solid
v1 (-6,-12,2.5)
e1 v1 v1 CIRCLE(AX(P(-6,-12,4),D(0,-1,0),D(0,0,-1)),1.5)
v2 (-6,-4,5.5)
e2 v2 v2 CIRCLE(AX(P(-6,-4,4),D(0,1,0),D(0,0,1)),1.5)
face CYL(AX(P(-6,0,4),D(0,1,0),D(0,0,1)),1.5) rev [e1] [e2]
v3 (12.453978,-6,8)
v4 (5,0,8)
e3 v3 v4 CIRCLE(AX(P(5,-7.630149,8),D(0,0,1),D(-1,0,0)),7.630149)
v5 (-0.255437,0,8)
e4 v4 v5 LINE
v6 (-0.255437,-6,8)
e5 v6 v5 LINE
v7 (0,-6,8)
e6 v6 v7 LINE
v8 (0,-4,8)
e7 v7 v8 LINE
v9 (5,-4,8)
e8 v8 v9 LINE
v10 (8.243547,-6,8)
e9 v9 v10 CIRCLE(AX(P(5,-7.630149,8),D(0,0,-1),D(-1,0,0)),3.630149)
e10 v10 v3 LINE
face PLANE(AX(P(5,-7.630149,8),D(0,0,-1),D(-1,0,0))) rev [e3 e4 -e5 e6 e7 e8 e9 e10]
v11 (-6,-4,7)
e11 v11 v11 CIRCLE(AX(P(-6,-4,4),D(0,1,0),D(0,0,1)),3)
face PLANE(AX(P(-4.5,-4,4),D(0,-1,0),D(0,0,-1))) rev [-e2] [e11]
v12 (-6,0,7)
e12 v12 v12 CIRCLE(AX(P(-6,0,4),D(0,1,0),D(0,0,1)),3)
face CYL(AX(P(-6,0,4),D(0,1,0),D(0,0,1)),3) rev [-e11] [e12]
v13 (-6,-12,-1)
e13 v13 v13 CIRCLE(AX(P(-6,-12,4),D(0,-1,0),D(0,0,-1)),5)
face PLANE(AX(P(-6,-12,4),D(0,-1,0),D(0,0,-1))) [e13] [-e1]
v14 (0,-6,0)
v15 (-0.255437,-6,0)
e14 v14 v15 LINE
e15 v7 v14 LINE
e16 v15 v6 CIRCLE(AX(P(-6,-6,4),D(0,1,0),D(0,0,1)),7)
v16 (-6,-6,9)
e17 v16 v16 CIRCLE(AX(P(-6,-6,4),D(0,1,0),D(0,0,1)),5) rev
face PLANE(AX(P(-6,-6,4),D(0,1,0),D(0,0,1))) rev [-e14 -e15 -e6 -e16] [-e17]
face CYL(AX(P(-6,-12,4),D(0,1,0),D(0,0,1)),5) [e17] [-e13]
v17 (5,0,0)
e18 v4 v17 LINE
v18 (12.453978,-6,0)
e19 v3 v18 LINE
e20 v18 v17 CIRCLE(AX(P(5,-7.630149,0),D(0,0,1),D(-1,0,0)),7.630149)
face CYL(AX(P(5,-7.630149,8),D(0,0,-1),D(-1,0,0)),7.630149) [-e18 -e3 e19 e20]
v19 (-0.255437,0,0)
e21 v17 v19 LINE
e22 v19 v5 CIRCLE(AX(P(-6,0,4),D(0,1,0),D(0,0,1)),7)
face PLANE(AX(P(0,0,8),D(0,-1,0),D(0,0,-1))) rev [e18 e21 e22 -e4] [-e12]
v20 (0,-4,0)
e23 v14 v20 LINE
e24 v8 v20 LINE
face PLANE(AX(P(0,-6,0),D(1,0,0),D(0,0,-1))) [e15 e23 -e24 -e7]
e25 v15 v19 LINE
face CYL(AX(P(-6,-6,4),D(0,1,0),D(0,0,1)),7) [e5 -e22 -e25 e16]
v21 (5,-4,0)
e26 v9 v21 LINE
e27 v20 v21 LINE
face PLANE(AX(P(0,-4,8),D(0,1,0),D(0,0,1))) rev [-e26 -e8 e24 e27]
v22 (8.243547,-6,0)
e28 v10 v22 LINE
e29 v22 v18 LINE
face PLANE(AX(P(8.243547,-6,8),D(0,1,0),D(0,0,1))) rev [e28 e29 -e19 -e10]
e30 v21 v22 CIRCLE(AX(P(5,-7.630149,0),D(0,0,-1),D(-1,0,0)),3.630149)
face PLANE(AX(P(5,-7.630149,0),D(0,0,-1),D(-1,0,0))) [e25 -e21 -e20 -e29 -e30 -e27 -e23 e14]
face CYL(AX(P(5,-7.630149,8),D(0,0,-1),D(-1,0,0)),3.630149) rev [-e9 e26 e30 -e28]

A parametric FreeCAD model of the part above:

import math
import FreeCAD as App
import Part
import Sketcher

V = App.Vector
Q = App.Units.Quantity

doc = App.newDocument("Part")
body = doc.addObject("PartDesign::Body", "Body")

# Sketch on XY plane
sketch1 = body.newObject("Sketcher::SketchObject", "Sketch")
sketch1.AttachmentSupport = (doc.getObject("XY_Plane"), [""])
sketch1.MapMode = "FlatFace"
sketch1.addGeometry(Part.LineSegment(V(5, 0, 0), V(0, 0, 0)), False)
sketch1.addGeometry(Part.LineSegment(V(0, 0, 0), V(0, -4, 0)), False)
sketch1.addGeometry(Part.LineSegment(V(0, -4, 0), V(5, -4, 0)), False)
sketch1.addGeometry(Part.ArcOfCircle(Part.Circle(V(5, -7.6, 0), V(0, 0, 1), 3.6), math.radians(27), math.radians(90)), False)
sketch1.addGeometry(Part.LineSegment(V(8.2, -6, 0), V(12.5, -6, 0)), False)
sketch1.addGeometry(Part.ArcOfCircle(Part.Circle(V(5, -7.6, 0), V(0, 0, 1), 7.6), math.radians(12), math.radians(90)), False)
sketch1.addConstraint(Sketcher.Constraint("Coincident", 0, 2, 1, 1))
sketch1.addConstraint(Sketcher.Constraint("Coincident", 1, 2, 2, 1))
sketch1.addConstraint(Sketcher.Constraint("Tangent", 2, 2, 3, 2))
sketch1.addConstraint(Sketcher.Constraint("Coincident", 3, 1, 4, 1))
sketch1.addConstraint(Sketcher.Constraint("Coincident", 4, 2, 5, 1))
sketch1.addConstraint(Sketcher.Constraint("Tangent", 5, 2, 0, 1))
sketch1.addConstraint(Sketcher.Constraint("Horizontal", 0))
sketch1.addConstraint(Sketcher.Constraint("Vertical", 1))
sketch1.addConstraint(Sketcher.Constraint("Horizontal", 2))
sketch1.addConstraint(Sketcher.Constraint("Horizontal", 4))
sketch1.addConstraint(Sketcher.Constraint("Coincident", 0, 2, -1, 1))
sketch1.addConstraint(Sketcher.Constraint("Coincident", 5, 3, 3, 3))
sketch1.addConstraint(Sketcher.Constraint("DistanceX", 0, 2, 0, 1, Q("5 mm")))
sketch1.addConstraint(Sketcher.Constraint("DistanceY", 1, 2, 1, 1, Q("4 mm")))
sketch1.addConstraint(Sketcher.Constraint("DistanceY", 3, 1, -1, 1, Q("6 mm")))
sketch1.addConstraint(Sketcher.Constraint("Radius", 3, Q("3.630149 mm")))
pad1 = body.newObject("PartDesign::Pad", "Pad")
pad1.Profile = sketch1
pad1.Length = 8

# Sketch on XZ plane
sketch2 = body.newObject("Sketcher::SketchObject", "Sketch001")
sketch2.AttachmentSupport = (doc.getObject("XZ_Plane"), [""])
sketch2.MapMode = "FlatFace"
sketch2.addGeometry(Part.LineSegment(V(0, 0, 0), V(-0.26, 0, 0)), False)
sketch2.addGeometry(Part.ArcOfCircle(Part.Circle(V(-6, 4, 0), V(0, 0, 1), 7), math.radians(35), math.radians(325)), False)
sketch2.addGeometry(Part.LineSegment(V(-0.26, 8, 0), V(0, 8, 0)), False)
sketch2.addGeometry(Part.LineSegment(V(0, 8, 0), V(0, 0, 0)), False)
sketch2.addConstraint(Sketcher.Constraint("Coincident", 0, 2, 1, 2))
sketch2.addConstraint(Sketcher.Constraint("Coincident", 1, 1, 2, 1))
sketch2.addConstraint(Sketcher.Constraint("Coincident", 2, 2, 3, 1))
sketch2.addConstraint(Sketcher.Constraint("Coincident", 3, 2, 0, 1))
sketch2.addConstraint(Sketcher.Constraint("Horizontal", 0))
sketch2.addConstraint(Sketcher.Constraint("Horizontal", 2))
sketch2.addConstraint(Sketcher.Constraint("Vertical", 3))
sketch2.addConstraint(Sketcher.Constraint("Coincident", 3, 2, -1, 1))
sketch2.addConstraint(Sketcher.Constraint("Vertical", 0, 2, 1, 1))
sketch2.addConstraint(Sketcher.Constraint("Radius", 1, Q("7 mm")))
sketch2.addConstraint(Sketcher.Constraint("DistanceY", 3, 2, 3, 1, Q("8 mm")))
sketch2.addConstraint(Sketcher.Constraint("DistanceX", 1, 3, -1, 1, Q("6 mm")))
pad2 = body.newObject("PartDesign::Pad", "Pad001")
pad2.Profile = sketch2
pad2.Length = 6

# Sketch on XZ plane
sketch3 = body.newObject("Sketcher::SketchObject", "Sketch002")
sketch3.AttachmentSupport = (doc.getObject("XZ_Plane"), [""])
sketch3.MapMode = "FlatFace"
sketch3.AttachmentOffset = App.Placement(V(0, 0, 6), App.Rotation())
sketch3.addGeometry(Part.Circle(V(-6, 4, 0), V(0, 0, 1), 5), False)
sketch3.addConstraint(Sketcher.Constraint("Diameter", 0, Q("10 mm")))
sketch3.addConstraint(Sketcher.Constraint("DistanceX", 0, 3, -1, 1, Q("6 mm")))
sketch3.addConstraint(Sketcher.Constraint("DistanceY", -1, 1, 0, 3, Q("4 mm")))
pad3 = body.newObject("PartDesign::Pad", "Pad002")
pad3.Profile = sketch3
pad3.Length = 6

# Sketch on XZ plane
sketch4 = body.newObject("Sketcher::SketchObject", "Sketch003")
sketch4.AttachmentSupport = (doc.getObject("XZ_Plane"), [""])
sketch4.MapMode = "FlatFace"
sketch4.addGeometry(Part.Circle(V(-6, 4, 0), V(0, 0, 1), 1.5), False)
sketch4.addConstraint(Sketcher.Constraint("Diameter", 0, Q("3 mm")))
sketch4.addConstraint(Sketcher.Constraint("DistanceX", 0, 3, -1, 1, Q("6 mm")))
sketch4.addConstraint(Sketcher.Constraint("DistanceY", -1, 1, 0, 3, Q("4 mm")))
doc.recompute()
hole = body.newObject("PartDesign::Hole", "Hole")
hole.Profile = sketch4
hole.ThreadType = "None"
hole.Diameter = 3
hole.DepthType = "Dimension"
hole.Depth = 30
hole.DrillPoint = "Flat"
hole.HoleCutType = "Counterbore"
hole.HoleCutDiameter = 6
hole.HoleCutDepth = 4
hole.Reversed = True

doc.recompute()
